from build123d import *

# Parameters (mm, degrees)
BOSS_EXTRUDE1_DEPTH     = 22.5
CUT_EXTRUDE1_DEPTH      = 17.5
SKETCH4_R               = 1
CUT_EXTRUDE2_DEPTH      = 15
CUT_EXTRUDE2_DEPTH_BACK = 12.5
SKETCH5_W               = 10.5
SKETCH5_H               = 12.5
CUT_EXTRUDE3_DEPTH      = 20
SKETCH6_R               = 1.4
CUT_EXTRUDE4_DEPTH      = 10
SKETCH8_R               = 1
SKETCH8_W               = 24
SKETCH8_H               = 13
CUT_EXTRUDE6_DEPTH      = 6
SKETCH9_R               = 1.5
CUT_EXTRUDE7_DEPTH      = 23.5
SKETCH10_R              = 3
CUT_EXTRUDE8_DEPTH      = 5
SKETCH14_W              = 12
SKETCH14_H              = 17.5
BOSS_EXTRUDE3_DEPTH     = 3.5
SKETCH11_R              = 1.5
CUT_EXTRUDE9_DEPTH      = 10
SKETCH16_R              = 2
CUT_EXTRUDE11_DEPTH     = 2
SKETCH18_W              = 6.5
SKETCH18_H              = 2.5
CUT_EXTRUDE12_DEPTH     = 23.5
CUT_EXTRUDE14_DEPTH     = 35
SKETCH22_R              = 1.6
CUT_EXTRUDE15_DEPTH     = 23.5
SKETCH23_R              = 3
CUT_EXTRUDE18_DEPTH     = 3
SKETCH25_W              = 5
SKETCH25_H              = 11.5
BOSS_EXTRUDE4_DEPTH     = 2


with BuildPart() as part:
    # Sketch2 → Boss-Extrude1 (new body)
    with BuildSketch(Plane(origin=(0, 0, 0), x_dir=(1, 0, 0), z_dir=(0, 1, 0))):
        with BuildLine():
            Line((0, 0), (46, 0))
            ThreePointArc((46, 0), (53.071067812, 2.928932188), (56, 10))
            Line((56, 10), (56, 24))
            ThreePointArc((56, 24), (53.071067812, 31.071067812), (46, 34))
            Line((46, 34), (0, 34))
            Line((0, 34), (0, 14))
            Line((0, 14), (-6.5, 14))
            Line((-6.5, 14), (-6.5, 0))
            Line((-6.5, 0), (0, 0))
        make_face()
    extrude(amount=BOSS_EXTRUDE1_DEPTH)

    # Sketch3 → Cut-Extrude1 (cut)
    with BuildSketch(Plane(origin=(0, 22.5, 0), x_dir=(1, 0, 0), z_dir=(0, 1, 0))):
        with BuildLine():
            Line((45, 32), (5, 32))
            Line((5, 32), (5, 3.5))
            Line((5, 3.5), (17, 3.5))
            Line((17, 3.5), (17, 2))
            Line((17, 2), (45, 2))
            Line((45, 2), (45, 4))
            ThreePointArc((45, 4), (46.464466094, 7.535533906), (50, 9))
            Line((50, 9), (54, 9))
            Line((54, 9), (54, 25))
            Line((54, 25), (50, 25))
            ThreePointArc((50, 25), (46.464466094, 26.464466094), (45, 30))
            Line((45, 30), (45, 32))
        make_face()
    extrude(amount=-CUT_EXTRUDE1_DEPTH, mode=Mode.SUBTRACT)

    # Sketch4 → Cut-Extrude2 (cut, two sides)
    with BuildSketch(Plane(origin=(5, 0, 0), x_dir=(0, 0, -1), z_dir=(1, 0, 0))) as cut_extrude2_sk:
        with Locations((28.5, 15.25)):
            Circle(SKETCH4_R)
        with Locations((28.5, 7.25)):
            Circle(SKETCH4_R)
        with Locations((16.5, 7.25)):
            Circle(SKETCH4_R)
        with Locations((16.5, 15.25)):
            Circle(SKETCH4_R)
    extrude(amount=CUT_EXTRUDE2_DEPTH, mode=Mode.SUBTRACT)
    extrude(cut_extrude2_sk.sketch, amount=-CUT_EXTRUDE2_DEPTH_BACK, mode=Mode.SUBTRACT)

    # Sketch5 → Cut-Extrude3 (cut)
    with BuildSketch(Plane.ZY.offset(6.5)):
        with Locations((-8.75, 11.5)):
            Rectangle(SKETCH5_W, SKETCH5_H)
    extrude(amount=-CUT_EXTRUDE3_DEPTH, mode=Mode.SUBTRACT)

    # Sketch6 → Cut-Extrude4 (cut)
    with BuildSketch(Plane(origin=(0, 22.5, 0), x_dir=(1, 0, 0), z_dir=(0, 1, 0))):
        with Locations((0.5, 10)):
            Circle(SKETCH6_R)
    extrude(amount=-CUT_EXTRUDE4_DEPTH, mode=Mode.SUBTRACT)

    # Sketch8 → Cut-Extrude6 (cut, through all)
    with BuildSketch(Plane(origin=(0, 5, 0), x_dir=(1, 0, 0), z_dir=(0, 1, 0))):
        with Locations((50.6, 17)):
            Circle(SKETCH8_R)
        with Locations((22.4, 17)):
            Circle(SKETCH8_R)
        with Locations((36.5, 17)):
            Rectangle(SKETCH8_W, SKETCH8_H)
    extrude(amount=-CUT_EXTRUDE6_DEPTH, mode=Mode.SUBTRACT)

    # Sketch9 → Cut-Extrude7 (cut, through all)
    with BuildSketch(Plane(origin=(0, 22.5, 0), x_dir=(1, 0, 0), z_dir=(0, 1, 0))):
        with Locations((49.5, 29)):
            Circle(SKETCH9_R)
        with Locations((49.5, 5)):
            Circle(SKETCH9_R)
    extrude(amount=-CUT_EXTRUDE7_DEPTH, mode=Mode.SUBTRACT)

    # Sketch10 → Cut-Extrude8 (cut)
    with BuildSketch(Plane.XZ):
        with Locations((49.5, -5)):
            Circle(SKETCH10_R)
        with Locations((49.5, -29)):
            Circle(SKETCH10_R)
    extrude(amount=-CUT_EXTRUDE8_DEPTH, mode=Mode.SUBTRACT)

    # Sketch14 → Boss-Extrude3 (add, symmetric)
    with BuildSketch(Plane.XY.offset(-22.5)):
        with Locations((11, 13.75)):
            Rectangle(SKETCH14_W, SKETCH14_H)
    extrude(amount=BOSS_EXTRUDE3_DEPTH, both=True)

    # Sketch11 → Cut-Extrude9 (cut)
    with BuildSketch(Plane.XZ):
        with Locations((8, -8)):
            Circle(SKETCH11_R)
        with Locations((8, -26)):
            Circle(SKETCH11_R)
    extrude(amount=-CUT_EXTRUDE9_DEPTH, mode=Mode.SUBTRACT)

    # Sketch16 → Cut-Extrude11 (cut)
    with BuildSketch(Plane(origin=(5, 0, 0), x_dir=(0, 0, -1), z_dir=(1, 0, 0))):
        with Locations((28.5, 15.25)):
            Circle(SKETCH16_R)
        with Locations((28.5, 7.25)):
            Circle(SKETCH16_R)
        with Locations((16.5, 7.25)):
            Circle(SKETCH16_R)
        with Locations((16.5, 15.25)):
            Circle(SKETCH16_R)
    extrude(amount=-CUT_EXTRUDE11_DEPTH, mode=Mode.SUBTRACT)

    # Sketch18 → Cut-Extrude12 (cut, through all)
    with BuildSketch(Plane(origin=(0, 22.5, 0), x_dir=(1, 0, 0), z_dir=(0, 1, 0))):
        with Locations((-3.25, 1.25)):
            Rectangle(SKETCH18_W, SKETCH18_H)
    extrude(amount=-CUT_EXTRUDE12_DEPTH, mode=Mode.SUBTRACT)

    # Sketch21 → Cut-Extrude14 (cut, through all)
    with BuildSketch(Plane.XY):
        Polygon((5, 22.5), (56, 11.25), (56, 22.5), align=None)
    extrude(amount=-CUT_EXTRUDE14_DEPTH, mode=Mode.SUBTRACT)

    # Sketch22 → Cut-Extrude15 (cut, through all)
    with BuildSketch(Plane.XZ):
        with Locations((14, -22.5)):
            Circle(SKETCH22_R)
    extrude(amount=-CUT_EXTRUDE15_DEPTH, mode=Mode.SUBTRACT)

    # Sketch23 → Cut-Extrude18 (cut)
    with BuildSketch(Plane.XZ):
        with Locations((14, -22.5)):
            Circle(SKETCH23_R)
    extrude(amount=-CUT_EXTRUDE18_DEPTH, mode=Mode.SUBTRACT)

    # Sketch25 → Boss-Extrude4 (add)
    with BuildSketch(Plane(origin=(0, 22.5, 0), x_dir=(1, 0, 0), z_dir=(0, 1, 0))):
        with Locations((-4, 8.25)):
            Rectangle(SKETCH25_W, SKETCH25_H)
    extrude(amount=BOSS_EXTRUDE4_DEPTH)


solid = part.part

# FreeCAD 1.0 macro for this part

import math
import FreeCAD as App
import Part
import Sketcher

V = App.Vector


def add_polygon(sketch, points):
    """Adds a closed chain of lines whose ends are joined by coincident constraints."""
    first, n = sketch.GeometryCount, len(points)
    for a, b in zip(points, points[1:] + points[:1]):
        sketch.addGeometry(Part.LineSegment(App.Vector(*a, 0), App.Vector(*b, 0)), False)
    for i in range(n):
        sketch.addConstraint(Sketcher.Constraint("Coincident", first + i, 2, first + (i + 1) % n, 1))

doc = App.newDocument("Part")
body = doc.addObject("PartDesign::Body", "Body")

sketch1 = body.newObject("Sketcher::SketchObject", "Sketch")
sketch1.AttachmentSupport = (doc.getObject("XZ_Plane"), [""])
sketch1.MapMode = "FlatFace"
sketch1.addGeometry([
    Part.ArcOfCircle(Part.Circle(V(46, -10, 0), V(0, 0, 1), 10), math.radians(0), math.radians(90)),
    Part.LineSegment(V(56, -10, 0), V(56, -24, 0)),
    Part.ArcOfCircle(Part.Circle(V(46, -24, 0), V(0, 0, 1), 10), math.radians(-90), math.radians(0)),
    Part.LineSegment(V(46, -34, 0), V(0, -34, 0)),
    Part.LineSegment(V(0, -34, 0), V(0, -14, 0)),
    Part.LineSegment(V(0, -14, 0), V(-6.5, -14, 0)),
    Part.LineSegment(V(-6.5, -14, 0), V(-6.5, 0, 0)),
    Part.LineSegment(V(-6.5, 0, 0), V(46, 0, 0)),
], False)
sketch1.addConstraint([
    Sketcher.Constraint("Tangent", 0, 1, 1, 1),
    Sketcher.Constraint("Tangent", 1, 2, 2, 2),
    Sketcher.Constraint("Tangent", 2, 1, 3, 1),
    Sketcher.Constraint("Coincident", 3, 2, 4, 1),
    Sketcher.Constraint("Coincident", 4, 2, 5, 1),
    Sketcher.Constraint("Coincident", 5, 2, 6, 1),
    Sketcher.Constraint("Coincident", 6, 2, 7, 1),
    Sketcher.Constraint("Tangent", 7, 2, 0, 2),
    Sketcher.Constraint("Vertical", 1),
    Sketcher.Constraint("Horizontal", 3),
    Sketcher.Constraint("Vertical", 4),
    Sketcher.Constraint("Horizontal", 5),
    Sketcher.Constraint("Vertical", 6),
    Sketcher.Constraint("Horizontal", 7),
    Sketcher.Constraint("Equal", 0, 2),
    Sketcher.Constraint("PointOnObject", 3, 2, -2),
    Sketcher.Constraint("PointOnObject", 6, 2, -1),
    Sketcher.Constraint("Equal", 1, 6),
    Sketcher.Constraint("Radius", 0, 10.0),
    Sketcher.Constraint("DistanceX", 3, 2, 3, 1, 46.0),
    Sketcher.Constraint("DistanceY", 1, 2, 1, 1, 14.0),
    Sketcher.Constraint("DistanceX", 5, 2, 5, 1, 6.5),
])
pad1 = body.newObject("PartDesign::Pad", "Pad")
pad1.Profile = sketch1
pad1.Length = 22.5
pad1.Reversed = True

sketch2 = body.newObject("Sketcher::SketchObject", "Sketch001")
sketch2.AttachmentSupport = (doc.getObject("XZ_Plane"), [""])
sketch2.MapMode = "FlatFace"
sketch2.AttachmentOffset = App.Placement(V(0, 0, -22.5), App.Rotation())
sketch2.addGeometry([
    Part.LineSegment(V(45, -32, 0), V(5, -32, 0)),
    Part.LineSegment(V(5, -32, 0), V(5, -3.5, 0)),
    Part.LineSegment(V(5, -3.5, 0), V(17, -3.5, 0)),
    Part.LineSegment(V(17, -3.5, 0), V(17, -2, 0)),
    Part.LineSegment(V(17, -2, 0), V(45, -2, 0)),
    Part.LineSegment(V(45, -2, 0), V(45, -4, 0)),
    Part.ArcOfCircle(Part.Circle(V(50, -4, 0), V(0, 0, 1), 5), math.radians(180), math.radians(270)),
    Part.LineSegment(V(50, -9, 0), V(54, -9, 0)),
    Part.LineSegment(V(54, -9, 0), V(54, -25, 0)),
    Part.LineSegment(V(54, -25, 0), V(50, -25, 0)),
    Part.ArcOfCircle(Part.Circle(V(50, -30, 0), V(0, 0, 1), 5), math.radians(90), math.radians(180)),
    Part.LineSegment(V(45, -30, 0), V(45, -32, 0)),
], False)
sketch2.addConstraint([
    Sketcher.Constraint("Coincident", 0, 2, 1, 1),
    Sketcher.Constraint("Coincident", 1, 2, 2, 1),
    Sketcher.Constraint("Coincident", 2, 2, 3, 1),
    Sketcher.Constraint("Coincident", 3, 2, 4, 1),
    Sketcher.Constraint("Coincident", 4, 2, 5, 1),
    Sketcher.Constraint("Tangent", 5, 2, 6, 1),
    Sketcher.Constraint("Tangent", 6, 2, 7, 1),
    Sketcher.Constraint("Coincident", 7, 2, 8, 1),
    Sketcher.Constraint("Coincident", 8, 2, 9, 1),
    Sketcher.Constraint("Tangent", 9, 2, 10, 1),
    Sketcher.Constraint("Tangent", 10, 2, 11, 1),
    Sketcher.Constraint("Coincident", 11, 2, 0, 1),
    Sketcher.Constraint("Horizontal", 0),
    Sketcher.Constraint("Vertical", 1),
    Sketcher.Constraint("Horizontal", 2),
    Sketcher.Constraint("Vertical", 3),
    Sketcher.Constraint("Horizontal", 4),
    Sketcher.Constraint("Vertical", 5),
    Sketcher.Constraint("Horizontal", 7),
    Sketcher.Constraint("Vertical", 8),
    Sketcher.Constraint("Horizontal", 9),
    Sketcher.Constraint("Vertical", 11),
    Sketcher.Constraint("Equal", 6, 10),
    Sketcher.Constraint("Vertical", 6, 3, 10, 3),
    Sketcher.Constraint("Equal", 5, 11),
    Sketcher.Constraint("Radius", 6, 5.0),
    Sketcher.Constraint("DistanceX", 0, 2, 0, 1, 40.0),
    Sketcher.Constraint("DistanceX", 2, 1, 2, 2, 12.0),
    Sketcher.Constraint("DistanceX", 7, 1, 7, 2, 4.0),
    Sketcher.Constraint("DistanceY", 5, 2, 5, 1, 2.0),
    Sketcher.Constraint("DistanceY", 8, 2, 8, 1, 16.0),
    Sketcher.Constraint("DistanceY", 1, 1, 1, 2, 28.5),
    Sketcher.Constraint("DistanceX", -1, 1, 6, 3, 50.0),
    Sketcher.Constraint("DistanceY", 6, 3, -1, 1, 4.0),
])
pocket1 = body.newObject("PartDesign::Pocket", "Pocket")
pocket1.Profile = sketch2
pocket1.Length = 17.5
pocket1.Reversed = True

sketch3 = body.newObject("Sketcher::SketchObject", "Sketch002")
sketch3.AttachmentSupport = (doc.getObject("YZ_Plane"), [""])
sketch3.MapMode = "FlatFace"
sketch3.AttachmentOffset = App.Placement(V(0, 0, 5), App.Rotation())
sketch3.addGeometry([
    Part.Circle(V(15.25, -28.5, 0), V(0, 0, 1), 1),
    Part.Circle(V(7.25, -28.5, 0), V(0, 0, 1), 1),
    Part.Circle(V(7.25, -16.5, 0), V(0, 0, 1), 1),
    Part.Circle(V(15.25, -16.5, 0), V(0, 0, 1), 1),
], False)
sketch3.addConstraint([
    Sketcher.Constraint("Equal", 0, 1),
    Sketcher.Constraint("Equal", 1, 2),
    Sketcher.Constraint("Equal", 2, 3),
    Sketcher.Constraint("Horizontal", 0, 3, 1, 3),
    Sketcher.Constraint("Horizontal", 2, 3, 3, 3),
    Sketcher.Constraint("Vertical", 1, 3, 2, 3),
    Sketcher.Constraint("Vertical", 0, 3, 3, 3),
    Sketcher.Constraint("Diameter", 0, 2.0),
    Sketcher.Constraint("DistanceX", 1, 3, 0, 3, 8.0),
    Sketcher.Constraint("DistanceY", 1, 3, 2, 3, 12.0),
    Sketcher.Constraint("DistanceY", 0, 3, -1, 1, 28.5),
    Sketcher.Constraint("DistanceX", -1, 1, 0, 3, 15.25),
])
pocket2 = body.newObject("PartDesign::Pocket", "Pocket001")
pocket2.Profile = sketch3
pocket2.Type = "TwoLengths"
pocket2.Length = 15
pocket2.Length2 = 12.5
pocket2.Reversed = True

sketch4 = body.newObject("Sketcher::SketchObject", "Sketch003")
sketch4.AttachmentSupport = (doc.getObject("YZ_Plane"), [""])
sketch4.MapMode = "FlatFace"
sketch4.AttachmentOffset = App.Placement(V(0, 0, -6.5), App.Rotation())
add_polygon(sketch4, [(17.75, -14), (5.25, -14), (5.25, -3.5), (17.75, -3.5)])
sketch4.addConstraint([
    Sketcher.Constraint("Horizontal", 0),
    Sketcher.Constraint("Vertical", 1),
    Sketcher.Constraint("Horizontal", 2),
    Sketcher.Constraint("Vertical", 3),
    Sketcher.Constraint("DistanceX", 0, 2, 0, 1, 12.5),
    Sketcher.Constraint("DistanceY", 1, 1, 1, 2, 10.5),
    Sketcher.Constraint("DistanceY", 0, 2, -1, 1, 14.0),
    Sketcher.Constraint("DistanceX", -1, 1, 0, 2, 5.25),
])
pocket3 = body.newObject("PartDesign::Pocket", "Pocket002")
pocket3.Profile = sketch4
pocket3.Length = 20
pocket3.Reversed = True

sketch5 = body.newObject("Sketcher::SketchObject", "Sketch004")
sketch5.AttachmentSupport = (doc.getObject("XZ_Plane"), [""])
sketch5.MapMode = "FlatFace"
sketch5.AttachmentOffset = App.Placement(V(0, 0, -22.5), App.Rotation())
sketch5.addGeometry(Part.Circle(V(0.5, -10, 0), V(0, 0, 1), 1.4), False)
sketch5.addConstraint([
    Sketcher.Constraint("Diameter", 0, 2.8),
    Sketcher.Constraint("DistanceY", 0, 3, -1, 1, 10.0),
    Sketcher.Constraint("DistanceX", -1, 1, 0, 3, 0.5),
])
pocket4 = body.newObject("PartDesign::Pocket", "Pocket003")
pocket4.Profile = sketch5
pocket4.Length = 10
pocket4.Reversed = True

sketch6 = body.newObject("Sketcher::SketchObject", "Sketch005")
sketch6.AttachmentSupport = (doc.getObject("XZ_Plane"), [""])
sketch6.MapMode = "FlatFace"
sketch6.AttachmentOffset = App.Placement(V(0, 0, -5), App.Rotation())
sketch6.addGeometry(Part.Circle(V(50.6, -17, 0), V(0, 0, 1), 1), False)
sketch6.addGeometry(Part.Circle(V(22.4, -17, 0), V(0, 0, 1), 1), False)
add_polygon(sketch6, [(24.5, -23.5), (24.5, -10.5), (48.5, -10.5), (48.5, -23.5)])
sketch6.addConstraint([
    Sketcher.Constraint("Vertical", 2),
    Sketcher.Constraint("Horizontal", 3),
    Sketcher.Constraint("Vertical", 4),
    Sketcher.Constraint("Horizontal", 5),
    Sketcher.Constraint("Equal", 0, 1),
    Sketcher.Constraint("Horizontal", 0, 3, 1, 3),
    Sketcher.Constraint("Diameter", 0, 2.0),
    Sketcher.Constraint("DistanceX", 3, 1, 3, 2, 24.0),
    Sketcher.Constraint("DistanceY", 2, 1, 2, 2, 13.0),
    Sketcher.Constraint("DistanceY", 0, 3, -1, 1, 17.0),
    Sketcher.Constraint("DistanceX", -1, 1, 0, 3, 50.6),
    Sketcher.Constraint("DistanceX", -1, 1, 1, 3, 22.4),
    Sketcher.Constraint("DistanceX", -1, 1, 2, 2, 24.5),
    Sketcher.Constraint("DistanceY", 2, 2, -1, 1, 10.5),
])
pocket5 = body.newObject("PartDesign::Pocket", "Pocket004")
pocket5.Profile = sketch6
pocket5.Type = "ThroughAll"
pocket5.Reversed = True

sketch7 = body.newObject("Sketcher::SketchObject", "Sketch006")
sketch7.AttachmentSupport = (doc.getObject("XZ_Plane"), [""])
sketch7.MapMode = "FlatFace"
sketch7.AttachmentOffset = App.Placement(V(0, 0, -22.5), App.Rotation())
sketch7.addGeometry([
    Part.Circle(V(49.5, -29, 0), V(0, 0, 1), 1.5),
    Part.Circle(V(49.5, -5, 0), V(0, 0, 1), 1.5),
], False)
sketch7.addConstraint([
    Sketcher.Constraint("Equal", 0, 1),
    Sketcher.Constraint("Vertical", 0, 3, 1, 3),
    Sketcher.Constraint("Diameter", 0, 3.0),
    Sketcher.Constraint("DistanceY", 0, 3, -1, 1, 29.0),
    Sketcher.Constraint("DistanceY", 1, 3, -1, 1, 5.0),
    Sketcher.Constraint("DistanceX", -1, 1, 0, 3, 49.5),
])
pocket6 = body.newObject("PartDesign::Pocket", "Pocket005")
pocket6.Profile = sketch7
pocket6.Type = "ThroughAll"
pocket6.Reversed = True

sketch8 = body.newObject("Sketcher::SketchObject", "Sketch007")
sketch8.AttachmentSupport = (doc.getObject("XZ_Plane"), [""])
sketch8.MapMode = "FlatFace"
sketch8.addGeometry([
    Part.Circle(V(49.5, -5, 0), V(0, 0, 1), 3),
    Part.Circle(V(49.5, -29, 0), V(0, 0, 1), 3),
], False)
sketch8.addConstraint([
    Sketcher.Constraint("Equal", 0, 1),
    Sketcher.Constraint("Vertical", 0, 3, 1, 3),
    Sketcher.Constraint("Diameter", 0, 6.0),
    Sketcher.Constraint("DistanceY", 0, 3, -1, 1, 5.0),
    Sketcher.Constraint("DistanceY", 1, 3, -1, 1, 29.0),
    Sketcher.Constraint("DistanceX", -1, 1, 0, 3, 49.5),
])
pocket7 = body.newObject("PartDesign::Pocket", "Pocket006")
pocket7.Profile = sketch8
pocket7.Length = 5

sketch9 = body.newObject("Sketcher::SketchObject", "Sketch008")
sketch9.AttachmentSupport = (doc.getObject("XY_Plane"), [""])
sketch9.MapMode = "FlatFace"
sketch9.AttachmentOffset = App.Placement(V(0, 0, -22.5), App.Rotation())
add_polygon(sketch9, [(5, 22.5), (5, 5), (17, 5), (17, 22.5)])
sketch9.addConstraint([
    Sketcher.Constraint("Vertical", 0),
    Sketcher.Constraint("Horizontal", 1),
    Sketcher.Constraint("Vertical", 2),
    Sketcher.Constraint("Horizontal", 3),
    Sketcher.Constraint("DistanceX", 1, 1, 1, 2, 12.0),
    Sketcher.Constraint("DistanceY", 0, 2, 0, 1, 17.5),
    Sketcher.Constraint("DistanceX", -1, 1, 0, 2, 5.0),
    Sketcher.Constraint("DistanceY", -1, 1, 0, 2, 5.0),
])
pad2 = body.newObject("PartDesign::Pad", "Pad001")
pad2.Profile = sketch9
pad2.Length = 7
pad2.Midplane = True

sketch10 = body.newObject("Sketcher::SketchObject", "Sketch009")
sketch10.AttachmentSupport = (doc.getObject("XZ_Plane"), [""])
sketch10.MapMode = "FlatFace"
sketch10.addGeometry([
    Part.Circle(V(8, -8, 0), V(0, 0, 1), 1.5),
    Part.Circle(V(8, -26, 0), V(0, 0, 1), 1.5),
], False)
sketch10.addConstraint([
    Sketcher.Constraint("Equal", 0, 1),
    Sketcher.Constraint("Vertical", 0, 3, 1, 3),
    Sketcher.Constraint("Diameter", 0, 3.0),
    Sketcher.Constraint("DistanceX", -1, 1, 0, 3, 8.0),
    Sketcher.Constraint("DistanceY", 0, 3, -1, 1, 8.0),
    Sketcher.Constraint("DistanceY", 1, 3, -1, 1, 26.0),
])
pocket8 = body.newObject("PartDesign::Pocket", "Pocket007")
pocket8.Profile = sketch10
pocket8.Length = 10

sketch11 = body.newObject("Sketcher::SketchObject", "Sketch010")
sketch11.AttachmentSupport = (doc.getObject("YZ_Plane"), [""])
sketch11.MapMode = "FlatFace"
sketch11.AttachmentOffset = App.Placement(V(0, 0, 5), App.Rotation())
sketch11.addGeometry([
    Part.Circle(V(15.25, -28.5, 0), V(0, 0, 1), 2),
    Part.Circle(V(7.25, -28.5, 0), V(0, 0, 1), 2),
    Part.Circle(V(7.25, -16.5, 0), V(0, 0, 1), 2),
    Part.Circle(V(15.25, -16.5, 0), V(0, 0, 1), 2),
], False)
sketch11.addConstraint([
    Sketcher.Constraint("Equal", 0, 1),
    Sketcher.Constraint("Equal", 1, 2),
    Sketcher.Constraint("Equal", 2, 3),
    Sketcher.Constraint("Horizontal", 0, 3, 1, 3),
    Sketcher.Constraint("Horizontal", 2, 3, 3, 3),
    Sketcher.Constraint("Vertical", 1, 3, 2, 3),
    Sketcher.Constraint("Vertical", 0, 3, 3, 3),
    Sketcher.Constraint("Diameter", 0, 4.0),
    Sketcher.Constraint("DistanceX", 1, 3, 0, 3, 8.0),
    Sketcher.Constraint("DistanceY", 1, 3, 2, 3, 12.0),
    Sketcher.Constraint("DistanceY", 0, 3, -1, 1, 28.5),
    Sketcher.Constraint("DistanceX", -1, 1, 0, 3, 15.25),
])
pocket9 = body.newObject("PartDesign::Pocket", "Pocket008")
pocket9.Profile = sketch11
pocket9.Length = 2

sketch12 = body.newObject("Sketcher::SketchObject", "Sketch011")
sketch12.AttachmentSupport = (doc.getObject("XZ_Plane"), [""])
sketch12.MapMode = "FlatFace"
sketch12.AttachmentOffset = App.Placement(V(0, 0, -22.5), App.Rotation())
add_polygon(sketch12, [(-6.5, -2.5), (-6.5, 0), (0, 0), (0, -2.5)])
sketch12.addConstraint([
    Sketcher.Constraint("Vertical", 0),
    Sketcher.Constraint("Horizontal", 1),
    Sketcher.Constraint("Vertical", 2),
    Sketcher.Constraint("Horizontal", 3),
    Sketcher.Constraint("Coincident", 1, 2, -1, 1),
    Sketcher.Constraint("DistanceX", 1, 1, 1, 2, 6.5),
    Sketcher.Constraint("DistanceY", 0, 1, 0, 2, 2.5),
])
pocket10 = body.newObject("PartDesign::Pocket", "Pocket009")
pocket10.Profile = sketch12
pocket10.Type = "ThroughAll"
pocket10.Reversed = True

sketch13 = body.newObject("Sketcher::SketchObject", "Sketch012")
sketch13.AttachmentSupport = (doc.getObject("XY_Plane"), [""])
sketch13.MapMode = "FlatFace"
add_polygon(sketch13, [(5, 22.5), (56, 11.25), (56, 22.5)])
sketch13.addConstraint([
    Sketcher.Constraint("Vertical", 1),
    Sketcher.Constraint("Horizontal", 2),
    Sketcher.Constraint("DistanceX", 2, 2, 2, 1, 51.0),
    Sketcher.Constraint("DistanceX", -1, 1, 0, 2, 56.0),
    Sketcher.Constraint("DistanceY", 1, 1, 1, 2, 11.25),
    Sketcher.Constraint("DistanceY", -1, 1, 1, 2, 22.5),
])
pocket11 = body.newObject("PartDesign::Pocket", "Pocket010")
pocket11.Profile = sketch13
pocket11.Type = "ThroughAll"

sketch14 = body.newObject("Sketcher::SketchObject", "Sketch013")
sketch14.AttachmentSupport = (doc.getObject("XZ_Plane"), [""])
sketch14.MapMode = "FlatFace"
sketch14.addGeometry(Part.Circle(V(14, -22.5, 0), V(0, 0, 1), 1.6), False)
sketch14.addConstraint([
    Sketcher.Constraint("Diameter", 0, 3.2),
    Sketcher.Constraint("DistanceX", -1, 1, 0, 3, 14.0),
    Sketcher.Constraint("DistanceY", 0, 3, -1, 1, 22.5),
])
pocket12 = body.newObject("PartDesign::Pocket", "Pocket011")
pocket12.Profile = sketch14
pocket12.Type = "ThroughAll"

sketch15 = body.newObject("Sketcher::SketchObject", "Sketch014")
sketch15.AttachmentSupport = (doc.getObject("XZ_Plane"), [""])
sketch15.MapMode = "FlatFace"
sketch15.addGeometry(Part.Circle(V(14, -22.5, 0), V(0, 0, 1), 3), False)
sketch15.addConstraint([
    Sketcher.Constraint("Diameter", 0, 6.0),
    Sketcher.Constraint("DistanceX", -1, 1, 0, 3, 14.0),
    Sketcher.Constraint("DistanceY", 0, 3, -1, 1, 22.5),
])
pocket13 = body.newObject("PartDesign::Pocket", "Pocket012")
pocket13.Profile = sketch15
pocket13.Length = 3

sketch16 = body.newObject("Sketcher::SketchObject", "Sketch015")
sketch16.AttachmentSupport = (doc.getObject("XZ_Plane"), [""])
sketch16.MapMode = "FlatFace"
sketch16.AttachmentOffset = App.Placement(V(0, 0, -22.5), App.Rotation())
add_polygon(sketch16, [(-6.5, -14), (-6.5, -2.5), (-1.5, -2.5), (-1.5, -14)])
sketch16.addConstraint([
    Sketcher.Constraint("Vertical", 0),
    Sketcher.Constraint("Horizontal", 1),
    Sketcher.Constraint("Vertical", 2),
    Sketcher.Constraint("Horizontal", 3),
    Sketcher.Constraint("DistanceX", 1, 1, 1, 2, 5.0),
    Sketcher.Constraint("DistanceY", 0, 1, 0, 2, 11.5),
    Sketcher.Constraint("DistanceY", 2, 2, -1, 1, 14.0),
    Sketcher.Constraint("DistanceX", 0, 2, -1, 1, 6.5),
])
pad3 = body.newObject("PartDesign::Pad", "Pad002")
pad3.Profile = sketch16
pad3.Length = 2
pad3.Reversed = True

doc.recompute()
